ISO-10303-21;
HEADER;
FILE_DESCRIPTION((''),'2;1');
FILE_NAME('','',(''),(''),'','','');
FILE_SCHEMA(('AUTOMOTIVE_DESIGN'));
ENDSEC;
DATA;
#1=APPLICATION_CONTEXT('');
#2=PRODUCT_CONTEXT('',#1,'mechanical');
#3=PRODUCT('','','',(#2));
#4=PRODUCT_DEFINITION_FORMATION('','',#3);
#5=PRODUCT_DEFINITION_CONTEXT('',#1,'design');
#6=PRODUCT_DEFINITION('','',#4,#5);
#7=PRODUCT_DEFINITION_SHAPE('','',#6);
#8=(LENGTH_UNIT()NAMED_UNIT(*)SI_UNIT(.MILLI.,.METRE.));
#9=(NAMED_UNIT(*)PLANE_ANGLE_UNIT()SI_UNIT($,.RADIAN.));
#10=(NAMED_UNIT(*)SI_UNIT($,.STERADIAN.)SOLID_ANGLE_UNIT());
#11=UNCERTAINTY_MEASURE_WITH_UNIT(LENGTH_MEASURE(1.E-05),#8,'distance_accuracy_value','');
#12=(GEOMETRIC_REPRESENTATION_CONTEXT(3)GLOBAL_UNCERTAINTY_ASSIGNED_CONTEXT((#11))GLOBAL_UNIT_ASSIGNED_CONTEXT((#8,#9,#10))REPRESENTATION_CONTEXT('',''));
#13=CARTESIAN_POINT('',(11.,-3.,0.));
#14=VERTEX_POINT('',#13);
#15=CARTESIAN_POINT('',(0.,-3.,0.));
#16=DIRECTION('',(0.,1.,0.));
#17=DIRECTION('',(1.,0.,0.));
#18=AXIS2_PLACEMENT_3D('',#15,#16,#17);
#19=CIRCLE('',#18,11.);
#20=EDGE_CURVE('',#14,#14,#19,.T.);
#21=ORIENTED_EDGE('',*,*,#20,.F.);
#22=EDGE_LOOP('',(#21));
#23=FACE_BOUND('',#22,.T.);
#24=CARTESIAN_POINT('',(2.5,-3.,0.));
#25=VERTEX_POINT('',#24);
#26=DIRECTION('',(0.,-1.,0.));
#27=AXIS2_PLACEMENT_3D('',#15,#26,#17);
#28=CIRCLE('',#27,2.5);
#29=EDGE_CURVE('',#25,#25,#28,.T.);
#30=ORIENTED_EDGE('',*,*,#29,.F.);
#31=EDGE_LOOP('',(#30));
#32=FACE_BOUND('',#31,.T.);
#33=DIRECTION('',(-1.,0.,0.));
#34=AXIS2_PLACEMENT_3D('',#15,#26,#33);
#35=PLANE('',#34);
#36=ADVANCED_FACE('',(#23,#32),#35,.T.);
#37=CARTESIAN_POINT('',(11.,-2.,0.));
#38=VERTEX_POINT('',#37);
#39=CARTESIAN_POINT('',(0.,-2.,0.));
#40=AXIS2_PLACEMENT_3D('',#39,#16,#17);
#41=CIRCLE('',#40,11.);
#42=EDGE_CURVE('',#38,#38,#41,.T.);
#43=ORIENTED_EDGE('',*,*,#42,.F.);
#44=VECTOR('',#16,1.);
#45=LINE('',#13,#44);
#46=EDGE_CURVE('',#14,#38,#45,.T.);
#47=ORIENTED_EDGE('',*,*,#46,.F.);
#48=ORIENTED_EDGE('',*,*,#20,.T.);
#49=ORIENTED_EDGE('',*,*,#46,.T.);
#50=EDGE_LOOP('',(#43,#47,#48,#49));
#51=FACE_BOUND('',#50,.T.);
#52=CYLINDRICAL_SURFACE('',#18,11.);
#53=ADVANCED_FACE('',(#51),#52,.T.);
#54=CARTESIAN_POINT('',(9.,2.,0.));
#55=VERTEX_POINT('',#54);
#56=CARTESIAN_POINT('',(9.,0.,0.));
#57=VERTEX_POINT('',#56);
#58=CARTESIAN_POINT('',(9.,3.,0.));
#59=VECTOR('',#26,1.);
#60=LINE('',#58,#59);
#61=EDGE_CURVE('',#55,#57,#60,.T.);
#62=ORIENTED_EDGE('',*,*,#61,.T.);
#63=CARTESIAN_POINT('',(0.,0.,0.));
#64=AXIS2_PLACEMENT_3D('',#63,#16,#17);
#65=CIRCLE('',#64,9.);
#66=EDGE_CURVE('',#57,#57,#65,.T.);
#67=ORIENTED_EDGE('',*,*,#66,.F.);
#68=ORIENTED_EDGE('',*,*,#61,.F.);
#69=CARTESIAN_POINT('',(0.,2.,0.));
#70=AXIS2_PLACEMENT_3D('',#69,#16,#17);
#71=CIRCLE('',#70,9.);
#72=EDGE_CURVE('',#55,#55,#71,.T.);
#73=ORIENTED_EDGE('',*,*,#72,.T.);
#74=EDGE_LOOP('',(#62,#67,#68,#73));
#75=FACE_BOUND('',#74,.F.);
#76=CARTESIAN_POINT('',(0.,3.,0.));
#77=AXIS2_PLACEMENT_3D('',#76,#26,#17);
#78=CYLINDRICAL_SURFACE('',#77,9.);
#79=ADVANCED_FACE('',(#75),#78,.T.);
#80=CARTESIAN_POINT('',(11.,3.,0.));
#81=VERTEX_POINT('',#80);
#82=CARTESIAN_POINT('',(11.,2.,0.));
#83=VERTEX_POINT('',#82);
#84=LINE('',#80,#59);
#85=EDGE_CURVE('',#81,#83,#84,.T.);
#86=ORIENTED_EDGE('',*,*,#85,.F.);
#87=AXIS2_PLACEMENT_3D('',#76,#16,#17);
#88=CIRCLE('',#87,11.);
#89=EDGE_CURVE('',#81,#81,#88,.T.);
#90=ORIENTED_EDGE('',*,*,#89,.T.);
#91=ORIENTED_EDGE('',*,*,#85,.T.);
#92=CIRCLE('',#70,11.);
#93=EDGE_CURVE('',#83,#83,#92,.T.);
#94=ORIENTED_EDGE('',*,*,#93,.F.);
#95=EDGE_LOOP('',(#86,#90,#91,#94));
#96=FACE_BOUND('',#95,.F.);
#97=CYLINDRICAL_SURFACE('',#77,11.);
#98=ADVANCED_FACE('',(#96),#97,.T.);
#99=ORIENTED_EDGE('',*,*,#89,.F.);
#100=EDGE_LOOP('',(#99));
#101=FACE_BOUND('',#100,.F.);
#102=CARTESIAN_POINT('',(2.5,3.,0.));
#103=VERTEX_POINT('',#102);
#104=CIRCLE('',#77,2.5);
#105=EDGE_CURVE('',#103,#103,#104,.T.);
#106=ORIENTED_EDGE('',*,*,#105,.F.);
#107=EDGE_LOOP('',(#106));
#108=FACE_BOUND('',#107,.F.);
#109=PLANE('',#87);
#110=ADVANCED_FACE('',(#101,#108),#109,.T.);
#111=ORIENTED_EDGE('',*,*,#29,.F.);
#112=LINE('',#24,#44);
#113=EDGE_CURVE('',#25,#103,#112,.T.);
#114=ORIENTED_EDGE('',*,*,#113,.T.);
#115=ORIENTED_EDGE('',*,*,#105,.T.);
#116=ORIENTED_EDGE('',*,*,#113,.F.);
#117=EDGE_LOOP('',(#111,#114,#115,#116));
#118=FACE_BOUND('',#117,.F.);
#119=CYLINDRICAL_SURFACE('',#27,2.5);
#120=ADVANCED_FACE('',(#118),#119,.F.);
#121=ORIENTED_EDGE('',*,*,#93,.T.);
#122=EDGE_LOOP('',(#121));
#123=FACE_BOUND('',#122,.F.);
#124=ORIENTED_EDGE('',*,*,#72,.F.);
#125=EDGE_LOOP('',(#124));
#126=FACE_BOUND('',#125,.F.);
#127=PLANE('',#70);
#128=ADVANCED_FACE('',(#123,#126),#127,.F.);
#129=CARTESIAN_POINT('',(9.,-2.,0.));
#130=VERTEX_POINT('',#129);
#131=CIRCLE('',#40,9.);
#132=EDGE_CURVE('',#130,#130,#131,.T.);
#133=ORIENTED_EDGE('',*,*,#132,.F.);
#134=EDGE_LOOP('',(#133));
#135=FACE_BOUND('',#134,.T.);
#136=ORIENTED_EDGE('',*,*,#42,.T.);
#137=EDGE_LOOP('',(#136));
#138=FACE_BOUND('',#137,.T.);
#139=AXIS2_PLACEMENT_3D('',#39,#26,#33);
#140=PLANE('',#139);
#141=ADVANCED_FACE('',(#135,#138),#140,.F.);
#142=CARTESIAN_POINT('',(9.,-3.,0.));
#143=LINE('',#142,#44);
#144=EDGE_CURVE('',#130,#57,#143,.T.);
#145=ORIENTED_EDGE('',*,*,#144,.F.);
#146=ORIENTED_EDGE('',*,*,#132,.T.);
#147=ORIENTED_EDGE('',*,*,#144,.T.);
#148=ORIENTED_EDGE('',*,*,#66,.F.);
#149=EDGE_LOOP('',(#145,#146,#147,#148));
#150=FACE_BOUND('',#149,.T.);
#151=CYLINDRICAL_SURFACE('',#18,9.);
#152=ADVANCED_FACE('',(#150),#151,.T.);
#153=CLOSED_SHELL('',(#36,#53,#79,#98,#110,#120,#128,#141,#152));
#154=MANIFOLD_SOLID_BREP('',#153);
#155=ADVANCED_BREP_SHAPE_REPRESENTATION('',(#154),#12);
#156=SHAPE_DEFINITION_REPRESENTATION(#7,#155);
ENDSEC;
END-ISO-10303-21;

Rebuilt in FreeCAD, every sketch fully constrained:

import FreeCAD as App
import Part
import Sketcher

V = App.Vector
Q = App.Units.Quantity


def add_polygon(sketch, points):
    """Adds a closed chain of lines whose ends are joined by coincident constraints."""
    first, n = sketch.GeometryCount, len(points)
    for a, b in zip(points, points[1:] + points[:1]):
        sketch.addGeometry(Part.LineSegment(App.Vector(*a, 0), App.Vector(*b, 0)), False)
    for i in range(n):
        sketch.addConstraint(Sketcher.Constraint("Coincident", first + i, 2, first + (i + 1) % n, 1))

doc = App.newDocument("Part")
body = doc.addObject("PartDesign::Body", "Body")

# Sketch on XY plane
sketch1 = doc.addObject("Sketcher::SketchObject", "Sketch")
body.addObject(sketch1)
sketch1.AttachmentSupport = (doc.XY_Plane, [""])
sketch1.MapMode = "FlatFace"
add_polygon(sketch1, [(0, 3), (0, 0), (9, 0), (9, 2), (11, 2), (11, 3)])  # lines 0-5
sketch1.addConstraint(Sketcher.Constraint("Vertical", 0))
sketch1.addConstraint(Sketcher.Constraint("Horizontal", 1))
sketch1.addConstraint(Sketcher.Constraint("Vertical", 2))
sketch1.addConstraint(Sketcher.Constraint("Horizontal", 3))
sketch1.addConstraint(Sketcher.Constraint("Vertical", 4))
sketch1.addConstraint(Sketcher.Constraint("Horizontal", 5))
sketch1.addConstraint(Sketcher.Constraint("Coincident", 0, 2, -1, 1))
sketch1.addConstraint(Sketcher.Constraint("Equal", 3, 2))
sketch1.addConstraint(Sketcher.Constraint("DistanceX", 1, 1, 1, 2, Q("9 mm")))
sketch1.addConstraint(Sketcher.Constraint("DistanceX", 3, 1, 3, 2, Q("2 mm")))
sketch1.addConstraint(Sketcher.Constraint("DistanceY", 0, 2, 0, 1, Q("3 mm")))
revolution = doc.addObject("PartDesign::Revolution", "Revolution")
body.addObject(revolution)
revolution.Profile = sketch1
revolution.ReferenceAxis = (sketch1, ["V_Axis"])
revolution.Angle = 360
doc.recompute()

mirrored = doc.addObject("PartDesign::Mirrored", "Mirrored")
body.addObject(mirrored)
mirrored.Originals = [revolution]
mirrored.MirrorPlane = (doc.XZ_Plane, [""])
body.Tip = mirrored

# Sketch on XZ plane
sketch2 = doc.addObject("Sketcher::SketchObject", "Sketch001")
body.addObject(sketch2)
sketch2.AttachmentSupport = (doc.XZ_Plane, [""])
sketch2.MapMode = "FlatFace"
sketch2.AttachmentOffset = App.Placement(V(0, 0, 3), App.Rotation())
sketch2.addGeometry(Part.Circle(V(0, 0, 0), V(0, 0, 1), 2.5), False)
sketch2.addConstraint(Sketcher.Constraint("Coincident", 0, 3, -1, 1))
sketch2.addConstraint(Sketcher.Constraint("Diameter", 0, Q("5 mm")))
pocket1 = doc.addObject("PartDesign::Pocket", "Pocket")
body.addObject(pocket1)
pocket1.Profile = sketch2
pocket1.Length = 10

doc.recompute()
